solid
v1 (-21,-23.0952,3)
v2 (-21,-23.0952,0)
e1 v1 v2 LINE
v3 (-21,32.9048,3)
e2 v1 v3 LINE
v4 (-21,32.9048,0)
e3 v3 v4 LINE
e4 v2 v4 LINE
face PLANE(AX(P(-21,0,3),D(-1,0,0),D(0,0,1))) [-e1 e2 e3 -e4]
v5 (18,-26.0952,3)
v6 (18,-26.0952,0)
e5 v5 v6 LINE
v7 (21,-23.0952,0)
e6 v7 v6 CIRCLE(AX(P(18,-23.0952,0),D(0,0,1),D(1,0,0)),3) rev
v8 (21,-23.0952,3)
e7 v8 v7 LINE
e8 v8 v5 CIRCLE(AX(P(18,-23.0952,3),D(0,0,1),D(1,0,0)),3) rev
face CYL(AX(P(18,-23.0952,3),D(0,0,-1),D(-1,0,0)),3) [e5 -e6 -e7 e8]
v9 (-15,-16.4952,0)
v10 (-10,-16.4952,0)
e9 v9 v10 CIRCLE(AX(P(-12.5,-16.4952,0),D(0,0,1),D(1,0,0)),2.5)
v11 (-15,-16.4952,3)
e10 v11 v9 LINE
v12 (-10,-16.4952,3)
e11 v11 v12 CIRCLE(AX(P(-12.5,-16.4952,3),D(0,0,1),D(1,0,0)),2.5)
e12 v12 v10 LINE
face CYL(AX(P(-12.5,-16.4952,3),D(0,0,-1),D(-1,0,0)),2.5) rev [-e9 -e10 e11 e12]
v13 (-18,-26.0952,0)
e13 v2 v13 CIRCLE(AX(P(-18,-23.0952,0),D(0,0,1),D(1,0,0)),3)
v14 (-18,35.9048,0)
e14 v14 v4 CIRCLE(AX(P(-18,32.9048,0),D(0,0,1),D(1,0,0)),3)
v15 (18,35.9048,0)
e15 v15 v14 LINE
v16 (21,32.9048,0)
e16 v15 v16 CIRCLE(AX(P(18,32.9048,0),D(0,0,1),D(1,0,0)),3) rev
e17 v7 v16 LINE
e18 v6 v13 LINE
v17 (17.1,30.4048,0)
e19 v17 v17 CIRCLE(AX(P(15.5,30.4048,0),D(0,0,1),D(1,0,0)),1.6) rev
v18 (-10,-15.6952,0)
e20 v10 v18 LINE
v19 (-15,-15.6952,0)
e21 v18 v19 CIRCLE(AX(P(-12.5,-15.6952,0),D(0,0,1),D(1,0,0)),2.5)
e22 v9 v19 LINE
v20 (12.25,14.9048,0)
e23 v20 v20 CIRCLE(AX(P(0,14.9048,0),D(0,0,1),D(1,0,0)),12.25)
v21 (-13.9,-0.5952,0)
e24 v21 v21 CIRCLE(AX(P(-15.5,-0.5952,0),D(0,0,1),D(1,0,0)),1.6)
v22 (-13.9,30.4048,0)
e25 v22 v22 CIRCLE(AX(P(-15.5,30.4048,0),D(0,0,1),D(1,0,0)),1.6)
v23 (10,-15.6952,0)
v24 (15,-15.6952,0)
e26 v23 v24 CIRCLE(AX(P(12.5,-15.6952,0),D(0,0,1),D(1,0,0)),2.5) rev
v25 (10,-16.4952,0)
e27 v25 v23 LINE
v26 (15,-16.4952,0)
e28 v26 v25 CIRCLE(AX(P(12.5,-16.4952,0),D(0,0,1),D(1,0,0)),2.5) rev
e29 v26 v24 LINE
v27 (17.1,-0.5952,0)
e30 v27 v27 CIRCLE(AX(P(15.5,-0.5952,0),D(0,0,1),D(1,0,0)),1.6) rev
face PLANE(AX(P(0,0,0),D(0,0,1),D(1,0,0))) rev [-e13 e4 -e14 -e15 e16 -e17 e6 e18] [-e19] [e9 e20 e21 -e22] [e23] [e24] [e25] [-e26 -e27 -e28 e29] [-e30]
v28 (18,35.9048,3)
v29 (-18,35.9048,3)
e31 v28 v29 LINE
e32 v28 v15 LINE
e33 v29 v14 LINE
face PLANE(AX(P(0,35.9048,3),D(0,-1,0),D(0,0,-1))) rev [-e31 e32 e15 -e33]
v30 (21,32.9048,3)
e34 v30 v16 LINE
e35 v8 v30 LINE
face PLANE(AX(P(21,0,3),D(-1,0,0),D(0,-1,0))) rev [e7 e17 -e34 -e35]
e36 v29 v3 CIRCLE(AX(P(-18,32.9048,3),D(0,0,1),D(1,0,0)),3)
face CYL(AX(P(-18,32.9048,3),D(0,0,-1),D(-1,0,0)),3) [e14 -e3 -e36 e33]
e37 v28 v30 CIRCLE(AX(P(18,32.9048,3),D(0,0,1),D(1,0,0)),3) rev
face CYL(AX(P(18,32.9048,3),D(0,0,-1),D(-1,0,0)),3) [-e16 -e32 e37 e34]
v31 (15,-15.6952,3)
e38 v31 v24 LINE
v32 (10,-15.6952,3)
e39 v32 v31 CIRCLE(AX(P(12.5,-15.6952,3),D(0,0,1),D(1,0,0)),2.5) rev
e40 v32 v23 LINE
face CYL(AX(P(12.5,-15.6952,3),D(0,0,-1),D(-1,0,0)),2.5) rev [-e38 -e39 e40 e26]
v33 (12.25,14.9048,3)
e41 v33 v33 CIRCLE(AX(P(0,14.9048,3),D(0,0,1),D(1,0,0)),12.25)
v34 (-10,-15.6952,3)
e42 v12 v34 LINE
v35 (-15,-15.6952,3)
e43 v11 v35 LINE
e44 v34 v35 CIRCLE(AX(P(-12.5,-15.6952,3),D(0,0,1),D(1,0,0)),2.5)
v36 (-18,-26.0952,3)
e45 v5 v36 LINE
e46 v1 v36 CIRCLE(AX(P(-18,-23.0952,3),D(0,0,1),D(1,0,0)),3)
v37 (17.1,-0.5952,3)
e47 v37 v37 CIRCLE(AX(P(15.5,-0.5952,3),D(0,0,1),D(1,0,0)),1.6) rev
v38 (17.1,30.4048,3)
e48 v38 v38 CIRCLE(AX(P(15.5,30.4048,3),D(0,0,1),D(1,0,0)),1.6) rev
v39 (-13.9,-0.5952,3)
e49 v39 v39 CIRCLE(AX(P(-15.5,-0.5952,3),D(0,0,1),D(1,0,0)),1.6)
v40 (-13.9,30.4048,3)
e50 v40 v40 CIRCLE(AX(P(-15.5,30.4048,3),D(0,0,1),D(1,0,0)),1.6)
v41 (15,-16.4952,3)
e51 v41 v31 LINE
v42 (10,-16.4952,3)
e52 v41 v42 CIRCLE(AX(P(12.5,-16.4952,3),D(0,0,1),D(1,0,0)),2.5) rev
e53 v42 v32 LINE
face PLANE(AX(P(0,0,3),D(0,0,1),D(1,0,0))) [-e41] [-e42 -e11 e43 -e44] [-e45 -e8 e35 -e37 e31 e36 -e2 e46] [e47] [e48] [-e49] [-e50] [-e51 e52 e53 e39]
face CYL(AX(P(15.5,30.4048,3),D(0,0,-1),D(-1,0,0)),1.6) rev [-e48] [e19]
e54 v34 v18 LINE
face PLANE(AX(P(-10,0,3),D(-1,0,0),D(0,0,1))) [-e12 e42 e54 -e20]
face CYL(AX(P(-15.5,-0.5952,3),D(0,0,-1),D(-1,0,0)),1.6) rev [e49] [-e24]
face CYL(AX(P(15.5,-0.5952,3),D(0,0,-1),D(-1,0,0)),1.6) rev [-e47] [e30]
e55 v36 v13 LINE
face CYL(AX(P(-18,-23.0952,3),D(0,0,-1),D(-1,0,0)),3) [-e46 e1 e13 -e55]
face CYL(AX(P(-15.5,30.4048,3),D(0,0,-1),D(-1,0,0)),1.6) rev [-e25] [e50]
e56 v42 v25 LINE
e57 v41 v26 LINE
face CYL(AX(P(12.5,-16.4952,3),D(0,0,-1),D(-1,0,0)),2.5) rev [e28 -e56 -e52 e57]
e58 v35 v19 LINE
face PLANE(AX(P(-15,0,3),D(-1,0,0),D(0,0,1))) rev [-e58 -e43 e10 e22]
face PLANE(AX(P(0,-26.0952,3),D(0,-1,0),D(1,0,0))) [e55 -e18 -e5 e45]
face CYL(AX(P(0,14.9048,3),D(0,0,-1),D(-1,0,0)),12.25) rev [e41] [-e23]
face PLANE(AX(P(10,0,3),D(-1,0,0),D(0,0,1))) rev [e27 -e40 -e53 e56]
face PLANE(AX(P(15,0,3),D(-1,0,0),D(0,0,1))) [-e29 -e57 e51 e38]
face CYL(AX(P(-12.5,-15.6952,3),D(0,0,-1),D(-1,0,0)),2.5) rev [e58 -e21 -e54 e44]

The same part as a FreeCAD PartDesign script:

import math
import FreeCAD as App
import Part
import Sketcher

V = App.Vector

doc = App.newDocument("Part")
body = doc.addObject("PartDesign::Body", "Body")

sketch1 = body.newObject("Sketcher::SketchObject", "Sketch")
sketch1.AttachmentSupport = (doc.getObject("XY_Plane"), [""])
sketch1.MapMode = "FlatFace"
sketch1.addGeometry([
    Part.ArcOfCircle(Part.Circle(V(-18, 32.9, 0), V(0, 0, 1), 3), math.radians(90), math.radians(180)),
    Part.LineSegment(V(-21, 32.9, 0), V(-21, -23.1, 0)),
    Part.ArcOfCircle(Part.Circle(V(-18, -23.1, 0), V(0, 0, 1), 3), math.radians(180), math.radians(270)),
    Part.LineSegment(V(-18, -26.1, 0), V(18, -26.1, 0)),
    Part.ArcOfCircle(Part.Circle(V(18, -23.1, 0), V(0, 0, 1), 3), math.radians(-90), math.radians(0)),
    Part.LineSegment(V(21, -23.1, 0), V(21, 32.9, 0)),
    Part.ArcOfCircle(Part.Circle(V(18, 32.9, 0), V(0, 0, 1), 3), math.radians(0), math.radians(90)),
    Part.LineSegment(V(18, 35.9, 0), V(-18, 35.9, 0)),
    Part.ArcOfCircle(Part.Circle(V(0, 14.9, 0), V(0, 0, 1), 12.2), math.radians(90), math.radians(270)),
    Part.ArcOfCircle(Part.Circle(V(0, 14.9, 0), V(0, 0, 1), 12.2), math.radians(0), math.radians(90)),
    Part.ArcOfCircle(Part.Circle(V(0, 14.9, 0), V(0, 0, 1), 12.2), math.radians(-90), math.radians(0)),
    Part.Circle(V(-15.5, -0.6, 0), V(0, 0, 1), 1.6),
    Part.LineSegment(V(-10, -15.7, 0), V(-10, -16.5, 0)),
    Part.ArcOfCircle(Part.Circle(V(-12.5, -16.5, 0), V(0, 0, 1), 2.5), math.radians(180), math.radians(360)),
    Part.LineSegment(V(-15, -16.5, 0), V(-15, -15.7, 0)),
    Part.ArcOfCircle(Part.Circle(V(-12.5, -15.7, 0), V(0, 0, 1), 2.5), math.radians(0), math.radians(180)),
    Part.Circle(V(-15.5, 30.4, 0), V(0, 0, 1), 1.6),
    Part.Circle(V(15.5, 30.4, 0), V(0, 0, 1), 1.6),
    Part.Circle(V(15.5, -0.6, 0), V(0, 0, 1), 1.6),
    Part.ArcOfCircle(Part.Circle(V(12.5, -15.7, 0), V(0, 0, 1), 2.5), math.radians(0), math.radians(180)),
    Part.LineSegment(V(15, -15.7, 0), V(15, -16.5, 0)),
    Part.ArcOfCircle(Part.Circle(V(12.5, -16.5, 0), V(0, 0, 1), 2.5), math.radians(180), math.radians(360)),
    Part.LineSegment(V(10, -16.5, 0), V(10, -15.7, 0)),
], False)
sketch1.addConstraint([
    Sketcher.Constraint("Tangent", 0, 2, 1, 1),
    Sketcher.Constraint("Tangent", 1, 2, 2, 1),
    Sketcher.Constraint("Tangent", 2, 2, 3, 1),
    Sketcher.Constraint("Tangent", 3, 2, 4, 1),
    Sketcher.Constraint("Tangent", 4, 2, 5, 1),
    Sketcher.Constraint("Tangent", 5, 2, 6, 1),
    Sketcher.Constraint("Tangent", 6, 2, 7, 1),
    Sketcher.Constraint("Tangent", 7, 2, 0, 1),
    Sketcher.Constraint("Tangent", 8, 1, 9, 2),
    Sketcher.Constraint("Tangent", 9, 1, 10, 2),
    Sketcher.Constraint("Tangent", 10, 1, 8, 2),
    Sketcher.Constraint("Tangent", 12, 2, 13, 2),
    Sketcher.Constraint("Tangent", 13, 1, 14, 1),
    Sketcher.Constraint("Tangent", 14, 2, 15, 2),
    Sketcher.Constraint("Tangent", 15, 1, 12, 1),
    Sketcher.Constraint("Tangent", 19, 1, 20, 1),
    Sketcher.Constraint("Tangent", 20, 2, 21, 2),
    Sketcher.Constraint("Tangent", 21, 1, 22, 1),
    Sketcher.Constraint("Tangent", 22, 2, 19, 2),
    Sketcher.Constraint("Vertical", 1),
    Sketcher.Constraint("Horizontal", 3),
    Sketcher.Constraint("Vertical", 5),
    Sketcher.Constraint("Horizontal", 7),
    Sketcher.Constraint("Vertical", 12),
    Sketcher.Constraint("Vertical", 14),
    Sketcher.Constraint("Vertical", 20),
    Sketcher.Constraint("Vertical", 22),
    Sketcher.Constraint("Equal", 0, 2),
    Sketcher.Constraint("Equal", 2, 4),
    Sketcher.Constraint("Equal", 4, 6),
    Sketcher.Constraint("Equal", 11, 16),
    Sketcher.Constraint("Equal", 16, 17),
    Sketcher.Constraint("Equal", 17, 18),
    Sketcher.Constraint("Equal", 15, 19),
    Sketcher.Constraint("Symmetric", 16, 3, 17, 3, -2),
    Sketcher.Constraint("Symmetric", 11, 3, 18, 3, -2),
    Sketcher.Constraint("Symmetric", 15, 3, 19, 3, -2),
    Sketcher.Constraint("PointOnObject", 8, 3, -2),
    Sketcher.Constraint("PointOnObject", 8, 1, -2),
    Sketcher.Constraint("PointOnObject", 10, 1, -2),
    Sketcher.Constraint("Horizontal", 13, 3, 21, 3),
    Sketcher.Constraint("Horizontal", 10, 3, 9, 1),
    Sketcher.Constraint("Vertical", 11, 3, 16, 3),
    Sketcher.Constraint("Radius", 0, 3.0),
    Sketcher.Constraint("Diameter", 11, 3.2),
    Sketcher.Constraint("Radius", 13, 2.5),
    Sketcher.Constraint("DistanceX", 3, 1, 3, 2, 36.0),
    Sketcher.Constraint("DistanceY", 1, 2, 1, 1, 56.0),
    Sketcher.Constraint("Radius", 8, 12.25),
    Sketcher.Constraint("DistanceY", 12, 2, 12, 1, 0.8),
    Sketcher.Constraint("DistanceX", 0, 3, -1, 1, 18.0),
    Sketcher.Constraint("DistanceX", 12, 2, -1, 1, 10.0),
    Sketcher.Constraint("DistanceY", 8, 3, 0, 3, 18.0),
    Sketcher.Constraint("DistanceX", 11, 3, 13, 3, 3.0),
    Sketcher.Constraint("DistanceY", 11, 3, 16, 3, 31.0),
    Sketcher.Constraint("DistanceY", 11, 3, 8, 3, 15.5),
    Sketcher.Constraint("DistanceY", 2, 3, 13, 3, 6.6),
    Sketcher.Constraint("DistanceY", -1, 1, 0, 3, 32.9048),
])
pad1 = body.newObject("PartDesign::Pad", "Pad")
pad1.Profile = sketch1
pad1.Length = 3

doc.recompute()
